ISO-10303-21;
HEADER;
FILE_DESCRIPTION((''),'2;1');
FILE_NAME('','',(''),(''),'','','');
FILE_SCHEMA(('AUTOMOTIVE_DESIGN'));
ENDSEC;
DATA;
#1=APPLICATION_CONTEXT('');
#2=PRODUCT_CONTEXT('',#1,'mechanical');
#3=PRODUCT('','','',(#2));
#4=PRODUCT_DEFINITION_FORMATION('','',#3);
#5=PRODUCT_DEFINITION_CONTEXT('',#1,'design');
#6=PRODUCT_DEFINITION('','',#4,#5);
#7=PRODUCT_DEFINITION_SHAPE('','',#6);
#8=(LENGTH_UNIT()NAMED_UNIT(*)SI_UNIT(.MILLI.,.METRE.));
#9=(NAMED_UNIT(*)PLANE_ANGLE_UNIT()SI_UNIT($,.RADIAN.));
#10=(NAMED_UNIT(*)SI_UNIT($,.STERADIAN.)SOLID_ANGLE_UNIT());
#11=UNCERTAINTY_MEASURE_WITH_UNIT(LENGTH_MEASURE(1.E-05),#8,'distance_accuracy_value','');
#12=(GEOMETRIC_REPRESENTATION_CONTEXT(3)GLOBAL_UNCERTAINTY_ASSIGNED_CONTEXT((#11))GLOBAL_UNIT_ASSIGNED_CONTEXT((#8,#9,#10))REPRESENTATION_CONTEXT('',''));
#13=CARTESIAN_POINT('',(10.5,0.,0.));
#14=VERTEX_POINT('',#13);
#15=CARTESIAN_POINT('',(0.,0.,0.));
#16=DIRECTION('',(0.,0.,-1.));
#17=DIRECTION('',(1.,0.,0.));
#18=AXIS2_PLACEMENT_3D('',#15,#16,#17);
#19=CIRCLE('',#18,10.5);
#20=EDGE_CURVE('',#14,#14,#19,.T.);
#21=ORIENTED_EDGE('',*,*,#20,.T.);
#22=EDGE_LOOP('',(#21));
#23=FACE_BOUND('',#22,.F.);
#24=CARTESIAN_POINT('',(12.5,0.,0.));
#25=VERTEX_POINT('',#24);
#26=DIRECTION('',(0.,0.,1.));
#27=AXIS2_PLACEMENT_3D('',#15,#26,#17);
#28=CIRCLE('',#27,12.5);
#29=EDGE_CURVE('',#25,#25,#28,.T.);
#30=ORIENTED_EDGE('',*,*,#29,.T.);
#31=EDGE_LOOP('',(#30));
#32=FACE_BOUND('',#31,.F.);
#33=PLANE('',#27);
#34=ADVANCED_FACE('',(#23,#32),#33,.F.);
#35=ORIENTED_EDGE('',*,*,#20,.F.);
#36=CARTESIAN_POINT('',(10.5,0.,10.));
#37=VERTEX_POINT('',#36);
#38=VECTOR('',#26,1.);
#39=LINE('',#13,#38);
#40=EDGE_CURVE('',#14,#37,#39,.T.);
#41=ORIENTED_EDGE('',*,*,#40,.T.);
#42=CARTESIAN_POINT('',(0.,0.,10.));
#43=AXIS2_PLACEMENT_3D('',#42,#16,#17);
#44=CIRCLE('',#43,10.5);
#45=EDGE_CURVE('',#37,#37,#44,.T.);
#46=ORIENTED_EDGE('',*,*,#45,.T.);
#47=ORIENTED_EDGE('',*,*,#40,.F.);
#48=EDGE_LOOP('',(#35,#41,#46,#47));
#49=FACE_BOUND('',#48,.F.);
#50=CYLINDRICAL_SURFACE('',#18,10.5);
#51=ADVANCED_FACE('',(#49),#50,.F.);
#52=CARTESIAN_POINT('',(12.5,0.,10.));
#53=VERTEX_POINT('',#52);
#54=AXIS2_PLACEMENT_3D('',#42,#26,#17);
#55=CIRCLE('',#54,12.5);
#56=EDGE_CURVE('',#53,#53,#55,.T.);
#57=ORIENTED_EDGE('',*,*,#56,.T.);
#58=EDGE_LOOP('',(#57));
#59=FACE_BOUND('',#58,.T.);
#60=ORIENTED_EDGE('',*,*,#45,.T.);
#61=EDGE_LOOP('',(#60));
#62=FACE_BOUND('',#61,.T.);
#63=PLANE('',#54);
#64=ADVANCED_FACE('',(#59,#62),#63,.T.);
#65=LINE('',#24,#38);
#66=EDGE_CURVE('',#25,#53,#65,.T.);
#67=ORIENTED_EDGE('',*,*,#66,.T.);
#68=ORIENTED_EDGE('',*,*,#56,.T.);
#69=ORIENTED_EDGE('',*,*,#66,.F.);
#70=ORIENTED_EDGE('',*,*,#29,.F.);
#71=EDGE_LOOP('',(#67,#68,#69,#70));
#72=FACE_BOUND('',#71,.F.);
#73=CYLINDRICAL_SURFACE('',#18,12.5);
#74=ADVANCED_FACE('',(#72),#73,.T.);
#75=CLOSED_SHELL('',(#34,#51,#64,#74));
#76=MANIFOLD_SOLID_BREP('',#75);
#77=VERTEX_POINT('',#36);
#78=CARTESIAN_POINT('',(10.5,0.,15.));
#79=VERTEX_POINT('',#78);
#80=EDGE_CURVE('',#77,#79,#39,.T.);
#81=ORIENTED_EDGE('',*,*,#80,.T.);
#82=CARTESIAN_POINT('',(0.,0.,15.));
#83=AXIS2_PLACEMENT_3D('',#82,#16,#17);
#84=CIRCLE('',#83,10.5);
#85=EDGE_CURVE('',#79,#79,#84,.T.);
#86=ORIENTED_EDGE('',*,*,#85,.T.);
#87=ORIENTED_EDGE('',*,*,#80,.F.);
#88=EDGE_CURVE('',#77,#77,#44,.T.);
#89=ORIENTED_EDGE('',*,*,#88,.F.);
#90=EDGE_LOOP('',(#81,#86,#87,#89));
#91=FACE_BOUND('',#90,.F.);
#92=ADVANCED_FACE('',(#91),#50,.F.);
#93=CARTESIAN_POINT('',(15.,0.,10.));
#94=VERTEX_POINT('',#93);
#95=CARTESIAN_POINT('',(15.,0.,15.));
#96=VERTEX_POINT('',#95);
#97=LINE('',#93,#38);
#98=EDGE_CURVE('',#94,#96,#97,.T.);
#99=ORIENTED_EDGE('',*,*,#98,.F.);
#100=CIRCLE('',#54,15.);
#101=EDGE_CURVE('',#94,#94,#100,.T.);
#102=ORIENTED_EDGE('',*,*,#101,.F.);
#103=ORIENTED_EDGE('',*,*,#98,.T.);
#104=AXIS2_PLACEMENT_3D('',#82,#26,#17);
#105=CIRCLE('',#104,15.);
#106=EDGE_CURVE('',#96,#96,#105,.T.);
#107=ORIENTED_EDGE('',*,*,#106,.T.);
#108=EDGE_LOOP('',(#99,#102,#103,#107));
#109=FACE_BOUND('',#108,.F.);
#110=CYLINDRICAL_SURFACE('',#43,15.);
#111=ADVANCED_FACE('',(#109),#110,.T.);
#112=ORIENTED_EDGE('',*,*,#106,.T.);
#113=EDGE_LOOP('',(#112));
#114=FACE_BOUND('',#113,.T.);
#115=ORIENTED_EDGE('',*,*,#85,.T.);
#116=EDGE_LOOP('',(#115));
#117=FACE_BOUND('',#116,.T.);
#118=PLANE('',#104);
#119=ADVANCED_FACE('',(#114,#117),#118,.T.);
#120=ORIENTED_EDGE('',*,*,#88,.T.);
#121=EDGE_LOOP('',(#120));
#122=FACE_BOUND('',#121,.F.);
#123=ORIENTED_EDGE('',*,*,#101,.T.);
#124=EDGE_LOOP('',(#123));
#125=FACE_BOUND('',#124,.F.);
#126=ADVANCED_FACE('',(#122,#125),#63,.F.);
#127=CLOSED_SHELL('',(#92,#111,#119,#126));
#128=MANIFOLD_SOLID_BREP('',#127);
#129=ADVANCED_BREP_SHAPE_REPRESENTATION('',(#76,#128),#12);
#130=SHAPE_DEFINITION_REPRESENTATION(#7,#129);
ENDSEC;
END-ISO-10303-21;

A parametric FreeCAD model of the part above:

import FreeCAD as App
import Part
import Sketcher

V = App.Vector
Q = App.Units.Quantity

doc = App.newDocument("Part")
body = doc.addObject("PartDesign::Body", "Body")

# Sketch on XY plane
sketch1 = body.newObject("Sketcher::SketchObject", "Sketch")
sketch1.AttachmentSupport = (doc.getObject("XY_Plane"), [""])
sketch1.MapMode = "FlatFace"
sketch1.addGeometry(Part.Circle(V(0, 0, 0), V(0, 0, 1), 12.5), False)
sketch1.addConstraint(Sketcher.Constraint("Coincident", 0, 3, -1, 1))
sketch1.addConstraint(Sketcher.Constraint("Diameter", 0, Q("25 mm")))
pad1 = body.newObject("PartDesign::Pad", "Pad")
pad1.Profile = sketch1
pad1.Length = 10
body2 = doc.addObject("PartDesign::Body", "Body001")

# Sketch on XY plane
sketch2 = body2.newObject("Sketcher::SketchObject", "Sketch001")
sketch2.AttachmentSupport = (doc.getObject("XY_Plane001"), [""])
sketch2.MapMode = "FlatFace"
sketch2.AttachmentOffset = App.Placement(V(0, 0, 10), App.Rotation())
sketch2.addGeometry(Part.Circle(V(0, 0, 0), V(0, 0, 1), 15), False)
sketch2.addConstraint(Sketcher.Constraint("Coincident", 0, 3, -1, 1))
sketch2.addConstraint(Sketcher.Constraint("Diameter", 0, Q("30 mm")))
pad2 = body2.newObject("PartDesign::Pad", "Pad001")
pad2.Profile = sketch2
pad2.Length = 5
body3 = doc.addObject("PartDesign::Body", "Body002")

# Sketch on XY plane
sketch3 = body3.newObject("Sketcher::SketchObject", "Sketch002")
sketch3.AttachmentSupport = (doc.getObject("XY_Plane002"), [""])
sketch3.MapMode = "FlatFace"
sketch3.addGeometry(Part.Circle(V(0, 0, 0), V(0, 0, 1), 10.5), False)
sketch3.addConstraint(Sketcher.Constraint("Coincident", 0, 3, -1, 1))
sketch3.addConstraint(Sketcher.Constraint("Diameter", 0, Q("21 mm")))
pad3 = body3.newObject("PartDesign::Pad", "Pad002")
pad3.Profile = sketch3
pad3.Length = 50.6
doc.recompute()

body4 = doc.addObject("PartDesign::Body", "Body003")
body4.BaseFeature = body3
boolean = body.newObject("PartDesign::Boolean", "Boolean")
boolean.Type = "Cut"
boolean.addObjects([body4])
doc.recompute()

boolean2 = body2.newObject("PartDesign::Boolean", "Boolean001")
boolean2.Type = "Cut"
boolean2.addObjects([body3])

doc.recompute()
